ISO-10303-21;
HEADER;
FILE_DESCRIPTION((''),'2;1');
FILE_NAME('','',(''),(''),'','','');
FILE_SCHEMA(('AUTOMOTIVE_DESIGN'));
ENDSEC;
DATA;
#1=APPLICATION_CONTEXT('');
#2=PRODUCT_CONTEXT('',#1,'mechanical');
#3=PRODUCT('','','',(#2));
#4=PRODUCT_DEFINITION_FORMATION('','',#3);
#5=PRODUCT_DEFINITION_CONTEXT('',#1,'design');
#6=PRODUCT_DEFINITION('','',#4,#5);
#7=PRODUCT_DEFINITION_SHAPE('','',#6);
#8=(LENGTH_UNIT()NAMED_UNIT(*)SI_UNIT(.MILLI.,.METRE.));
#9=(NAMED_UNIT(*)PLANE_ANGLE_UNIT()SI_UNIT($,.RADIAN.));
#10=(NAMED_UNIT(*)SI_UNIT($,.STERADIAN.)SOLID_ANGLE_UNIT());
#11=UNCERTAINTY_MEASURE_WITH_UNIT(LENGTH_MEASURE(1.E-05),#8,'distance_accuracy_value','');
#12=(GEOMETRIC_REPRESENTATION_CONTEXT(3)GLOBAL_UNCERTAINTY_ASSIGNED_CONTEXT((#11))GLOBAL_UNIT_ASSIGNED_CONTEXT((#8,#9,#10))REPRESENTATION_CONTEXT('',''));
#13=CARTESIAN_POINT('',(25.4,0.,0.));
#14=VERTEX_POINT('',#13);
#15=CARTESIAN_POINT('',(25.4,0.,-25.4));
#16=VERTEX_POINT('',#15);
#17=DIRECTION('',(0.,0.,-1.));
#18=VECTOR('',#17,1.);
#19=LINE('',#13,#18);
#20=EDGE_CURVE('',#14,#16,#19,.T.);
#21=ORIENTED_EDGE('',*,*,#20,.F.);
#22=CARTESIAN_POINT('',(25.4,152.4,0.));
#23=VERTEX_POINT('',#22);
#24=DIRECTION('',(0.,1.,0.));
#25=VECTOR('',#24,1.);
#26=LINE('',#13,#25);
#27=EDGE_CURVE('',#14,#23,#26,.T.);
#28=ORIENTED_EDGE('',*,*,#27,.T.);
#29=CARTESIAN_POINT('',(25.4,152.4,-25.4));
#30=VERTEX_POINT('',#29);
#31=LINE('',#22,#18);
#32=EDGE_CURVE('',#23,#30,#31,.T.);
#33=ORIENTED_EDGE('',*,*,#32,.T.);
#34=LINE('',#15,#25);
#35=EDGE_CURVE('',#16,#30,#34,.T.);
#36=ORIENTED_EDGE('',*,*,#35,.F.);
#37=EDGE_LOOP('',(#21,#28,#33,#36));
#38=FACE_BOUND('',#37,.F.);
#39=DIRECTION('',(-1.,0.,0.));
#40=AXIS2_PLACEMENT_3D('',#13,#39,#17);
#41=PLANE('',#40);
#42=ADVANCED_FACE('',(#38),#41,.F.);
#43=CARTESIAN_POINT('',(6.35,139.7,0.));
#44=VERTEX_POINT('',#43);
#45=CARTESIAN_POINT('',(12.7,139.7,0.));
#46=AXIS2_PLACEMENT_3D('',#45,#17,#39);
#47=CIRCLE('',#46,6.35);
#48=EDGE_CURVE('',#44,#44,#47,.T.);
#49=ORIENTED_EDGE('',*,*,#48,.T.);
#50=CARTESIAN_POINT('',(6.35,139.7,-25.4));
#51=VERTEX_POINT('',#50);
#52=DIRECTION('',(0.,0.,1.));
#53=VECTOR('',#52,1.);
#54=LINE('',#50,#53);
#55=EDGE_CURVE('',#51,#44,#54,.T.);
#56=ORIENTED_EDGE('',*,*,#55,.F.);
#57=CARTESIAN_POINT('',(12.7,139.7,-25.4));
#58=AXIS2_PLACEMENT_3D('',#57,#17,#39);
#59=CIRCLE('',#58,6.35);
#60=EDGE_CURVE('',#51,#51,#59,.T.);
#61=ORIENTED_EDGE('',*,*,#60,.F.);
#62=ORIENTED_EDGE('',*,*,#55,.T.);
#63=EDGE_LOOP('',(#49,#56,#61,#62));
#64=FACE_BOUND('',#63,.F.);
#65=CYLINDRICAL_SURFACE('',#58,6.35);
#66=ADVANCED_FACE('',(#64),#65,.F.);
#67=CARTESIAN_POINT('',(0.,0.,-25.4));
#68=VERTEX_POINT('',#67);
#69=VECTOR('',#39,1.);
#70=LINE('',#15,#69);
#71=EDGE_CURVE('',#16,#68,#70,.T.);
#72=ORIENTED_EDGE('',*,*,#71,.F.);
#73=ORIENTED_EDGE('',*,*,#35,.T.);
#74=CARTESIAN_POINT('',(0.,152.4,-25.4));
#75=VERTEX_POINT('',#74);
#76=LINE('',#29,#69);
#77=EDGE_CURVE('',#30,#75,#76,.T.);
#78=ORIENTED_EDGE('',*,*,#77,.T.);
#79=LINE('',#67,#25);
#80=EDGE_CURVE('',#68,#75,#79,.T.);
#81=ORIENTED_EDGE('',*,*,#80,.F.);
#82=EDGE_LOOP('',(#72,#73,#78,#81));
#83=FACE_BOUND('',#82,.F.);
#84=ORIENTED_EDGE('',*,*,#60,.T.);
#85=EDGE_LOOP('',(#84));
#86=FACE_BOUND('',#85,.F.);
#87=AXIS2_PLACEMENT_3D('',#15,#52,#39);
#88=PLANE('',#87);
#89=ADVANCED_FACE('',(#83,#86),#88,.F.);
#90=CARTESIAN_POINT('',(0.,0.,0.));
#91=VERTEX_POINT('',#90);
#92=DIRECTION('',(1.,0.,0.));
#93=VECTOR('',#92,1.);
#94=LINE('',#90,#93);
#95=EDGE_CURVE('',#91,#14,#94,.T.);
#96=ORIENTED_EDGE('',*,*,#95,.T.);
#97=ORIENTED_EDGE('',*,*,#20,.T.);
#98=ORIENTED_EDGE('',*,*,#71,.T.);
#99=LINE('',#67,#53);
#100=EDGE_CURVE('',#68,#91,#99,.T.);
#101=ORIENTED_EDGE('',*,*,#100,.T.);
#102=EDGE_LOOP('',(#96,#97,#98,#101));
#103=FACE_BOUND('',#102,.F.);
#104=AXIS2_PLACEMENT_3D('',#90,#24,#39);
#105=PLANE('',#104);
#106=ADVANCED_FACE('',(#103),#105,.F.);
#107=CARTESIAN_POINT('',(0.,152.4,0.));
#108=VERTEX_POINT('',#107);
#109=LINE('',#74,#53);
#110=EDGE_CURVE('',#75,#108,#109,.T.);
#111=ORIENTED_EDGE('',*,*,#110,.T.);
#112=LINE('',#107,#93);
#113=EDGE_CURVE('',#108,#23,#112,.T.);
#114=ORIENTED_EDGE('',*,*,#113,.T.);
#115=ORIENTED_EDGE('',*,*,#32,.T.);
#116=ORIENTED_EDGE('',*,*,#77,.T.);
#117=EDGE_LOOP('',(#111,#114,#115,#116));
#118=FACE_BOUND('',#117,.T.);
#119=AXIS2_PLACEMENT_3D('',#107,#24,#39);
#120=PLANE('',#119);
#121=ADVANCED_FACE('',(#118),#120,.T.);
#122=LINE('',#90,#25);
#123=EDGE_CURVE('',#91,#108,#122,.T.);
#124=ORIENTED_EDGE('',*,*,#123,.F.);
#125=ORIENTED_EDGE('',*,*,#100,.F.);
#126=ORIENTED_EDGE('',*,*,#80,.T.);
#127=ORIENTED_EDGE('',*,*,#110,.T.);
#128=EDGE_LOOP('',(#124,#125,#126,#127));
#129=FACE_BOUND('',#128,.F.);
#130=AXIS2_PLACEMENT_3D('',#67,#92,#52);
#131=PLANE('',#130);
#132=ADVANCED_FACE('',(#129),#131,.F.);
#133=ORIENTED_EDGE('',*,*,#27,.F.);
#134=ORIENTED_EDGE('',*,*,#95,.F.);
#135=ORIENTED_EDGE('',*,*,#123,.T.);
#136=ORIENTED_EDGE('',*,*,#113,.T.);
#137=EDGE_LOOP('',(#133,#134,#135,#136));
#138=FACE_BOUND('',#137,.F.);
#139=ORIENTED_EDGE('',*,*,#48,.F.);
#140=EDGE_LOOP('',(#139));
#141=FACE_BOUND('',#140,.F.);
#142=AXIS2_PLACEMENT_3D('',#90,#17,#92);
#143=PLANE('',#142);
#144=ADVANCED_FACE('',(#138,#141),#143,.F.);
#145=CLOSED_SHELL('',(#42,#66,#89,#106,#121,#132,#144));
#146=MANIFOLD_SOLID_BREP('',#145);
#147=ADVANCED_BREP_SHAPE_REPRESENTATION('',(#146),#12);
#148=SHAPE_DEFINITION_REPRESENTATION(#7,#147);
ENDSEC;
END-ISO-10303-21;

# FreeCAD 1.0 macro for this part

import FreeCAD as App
import Part
import Sketcher
from FreeCAD import Vector
Q = App.Units.Quantity


def add_polygon(sketch, points):
    """Adds a closed chain of lines whose ends are joined by coincident constraints."""
    first, n = sketch.GeometryCount, len(points)
    for a, b in zip(points, points[1:] + points[:1]):
        sketch.addGeometry(Part.LineSegment(App.Vector(*a, 0), App.Vector(*b, 0)), False)
    for i in range(n):
        sketch.addConstraint(Sketcher.Constraint("Coincident", first + i, 2, first + (i + 1) % n, 1))

doc = App.newDocument("Part")
body = doc.addObject("PartDesign::Body", "Body")

# Sketch on XZ plane
sketch1 = body.newObject("Sketcher::SketchObject", "Sketch")
sketch1.AttachmentSupport = (doc.getObject("XZ_Plane"), [""])
sketch1.MapMode = "FlatFace"
add_polygon(sketch1, [(0, -25), (0, 0), (25, 0), (25, -25)])  # lines 0-3
sketch1.addConstraint([
    Sketcher.Constraint("Vertical", 0),
    Sketcher.Constraint("Horizontal", 1),
    Sketcher.Constraint("Vertical", 2),
    Sketcher.Constraint("Horizontal", 3),
    Sketcher.Constraint("Coincident", 0, 2, -1, 1),
    Sketcher.Constraint("Equal", 3, 0),
    Sketcher.Constraint("DistanceX", 1, 1, 1, 2, Q("1 in")),
])
pad1 = body.newObject("PartDesign::Pad", "Pad")
pad1.Profile = sketch1
pad1.Length = Q("6 in")
pad1.Reversed = True

# Sketch on XY plane
sketch2 = body.newObject("Sketcher::SketchObject", "Sketch001")
sketch2.AttachmentSupport = (doc.getObject("XY_Plane"), [""])
sketch2.MapMode = "FlatFace"
sketch2.AttachmentOffset = App.Placement(Vector(0, 0, -1 * 25.4), App.Rotation())
sketch2.addGeometry(Part.Circle(Vector(13, 140, 0), Vector(0, 0, 1), 6), False)
sketch2.addConstraint([
    Sketcher.Constraint("Diameter", 0, Q("0.5 in")),
    Sketcher.Constraint("DistanceX", -1, 1, 0, 3, Q("0.5 in")),
    Sketcher.Constraint("DistanceY", -1, 1, 0, 3, Q("5.5 in")),
])
pocket1 = body.newObject("PartDesign::Pocket", "Pocket")
pocket1.Profile = sketch2
pocket1.Length = Q("6 in")
pocket1.Reversed = True

doc.recompute()
